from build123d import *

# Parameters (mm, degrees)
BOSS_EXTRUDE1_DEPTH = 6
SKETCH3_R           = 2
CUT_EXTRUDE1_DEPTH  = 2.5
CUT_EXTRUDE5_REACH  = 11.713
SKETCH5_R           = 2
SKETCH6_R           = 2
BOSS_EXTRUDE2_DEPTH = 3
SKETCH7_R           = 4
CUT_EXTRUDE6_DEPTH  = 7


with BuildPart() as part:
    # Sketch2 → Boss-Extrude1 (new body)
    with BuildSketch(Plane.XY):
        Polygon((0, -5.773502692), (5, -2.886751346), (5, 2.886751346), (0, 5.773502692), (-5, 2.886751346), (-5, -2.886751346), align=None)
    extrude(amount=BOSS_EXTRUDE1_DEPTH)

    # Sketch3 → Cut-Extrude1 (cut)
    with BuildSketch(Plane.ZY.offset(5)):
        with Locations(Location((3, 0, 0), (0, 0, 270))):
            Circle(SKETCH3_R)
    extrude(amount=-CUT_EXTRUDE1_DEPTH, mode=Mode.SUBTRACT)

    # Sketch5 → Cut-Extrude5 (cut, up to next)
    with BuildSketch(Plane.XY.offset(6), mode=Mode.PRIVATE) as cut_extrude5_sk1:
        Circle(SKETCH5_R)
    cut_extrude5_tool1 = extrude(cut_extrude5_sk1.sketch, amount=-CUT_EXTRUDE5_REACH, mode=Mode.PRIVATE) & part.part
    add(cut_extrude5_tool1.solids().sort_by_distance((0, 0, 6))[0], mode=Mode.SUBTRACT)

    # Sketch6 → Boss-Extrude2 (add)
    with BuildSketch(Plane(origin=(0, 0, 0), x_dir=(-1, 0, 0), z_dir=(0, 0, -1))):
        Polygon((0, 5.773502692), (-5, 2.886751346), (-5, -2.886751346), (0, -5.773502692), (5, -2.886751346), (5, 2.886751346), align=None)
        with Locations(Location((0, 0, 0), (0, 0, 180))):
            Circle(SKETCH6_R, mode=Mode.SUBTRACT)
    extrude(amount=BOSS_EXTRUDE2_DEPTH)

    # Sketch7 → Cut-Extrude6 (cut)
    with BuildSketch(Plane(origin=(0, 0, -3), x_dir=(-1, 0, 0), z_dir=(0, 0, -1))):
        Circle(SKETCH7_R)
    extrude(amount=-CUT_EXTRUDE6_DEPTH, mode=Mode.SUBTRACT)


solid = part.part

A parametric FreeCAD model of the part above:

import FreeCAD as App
import Part
import Sketcher

V = App.Vector
Q = App.Units.Quantity


def add_polygon(sketch, points):
    """Adds a closed chain of lines whose ends are joined by coincident constraints."""
    first, n = sketch.GeometryCount, len(points)
    for a, b in zip(points, points[1:] + points[:1]):
        sketch.addGeometry(Part.LineSegment(App.Vector(*a, 0), App.Vector(*b, 0)), False)
    for i in range(n):
        sketch.addConstraint(Sketcher.Constraint("Coincident", first + i, 2, first + (i + 1) % n, 1))

doc = App.newDocument("Part")
params = doc.addObject("Spreadsheet::Sheet", "Params")
for row, (alias, value) in enumerate([
    ("pad1_length", "6 mm"),
    ("sketch2_diameter", "4 mm"),
    ("pocket1_length", "2.5 mm"),
    ("sketch3_diameter", "4 mm"),
    ("sketch4_diameter", "4 mm"),
    ("pad2_length", "3 mm"),
    ("sketch5_diameter", "8 mm"),
    ("pocket3_length", "7 mm"),
], start=1):
    params.set(f"A{row}", alias)
    params.set(f"B{row}", "=" + value)
    params.setAlias(f"B{row}", alias)

body = doc.addObject("PartDesign::Body", "Body")

sketch1 = doc.addObject("Sketcher::SketchObject", "Sketch")
body.addObject(sketch1)
sketch1.AttachmentSupport = (doc.XY_Plane, [""])
sketch1.MapMode = "FlatFace"
add_polygon(sketch1, [(0, -6), (5, -3), (5, 3), (0, 6), (-5, 3), (-5, -3)])
sketch1.addConstraint([
    Sketcher.Constraint("Vertical", 1),
    Sketcher.Constraint("Vertical", 4),
    Sketcher.Constraint("Symmetric", 0, 2, 3, 2, -1, 1),
    Sketcher.Constraint("Symmetric", 2, 2, 5, 2, -1, 1),
    Sketcher.Constraint("PointOnObject", 2, 2, -2),
    Sketcher.Constraint("Parallel", 2, 5),
    Sketcher.Constraint("Horizontal", 1, 2, 3, 2),
    Sketcher.Constraint("Angle", 0, Q("30 deg")),
    Sketcher.Constraint("DistanceX", -1, 1, 0, 2, 5.0),
    Sketcher.Constraint("DistanceY", 1, 1, 1, 2, 5.773503),
])
pad1 = doc.addObject("PartDesign::Pad", "Pad")
body.addObject(pad1)
pad1.Profile = sketch1
pad1.setExpression("Length", "Params.pad1_length")

sketch2 = doc.addObject("Sketcher::SketchObject", "Sketch001")
body.addObject(sketch2)
sketch2.AttachmentSupport = (doc.YZ_Plane, [""])
sketch2.MapMode = "FlatFace"
sketch2.AttachmentOffset = App.Placement(V(0, 0, -5), App.Rotation())
sketch2.addGeometry(Part.Circle(V(0, 3, 0), V(0, 0, 1), 2), False)
sketch2.addConstraint([
    Sketcher.Constraint("PointOnObject", 0, 3, -2),
    Sketcher.Constraint("Diameter", 0, 4.0),
    Sketcher.Constraint("DistanceY", -1, 1, 0, 3, 3.0),
])
sketch2.setExpression("Constraints[1]", "Params.sketch2_diameter")
pocket1 = doc.addObject("PartDesign::Pocket", "Pocket")
body.addObject(pocket1)
pocket1.Profile = sketch2
pocket1.setExpression("Length", "Params.pocket1_length")
pocket1.Reversed = True

sketch3 = doc.addObject("Sketcher::SketchObject", "Sketch002")
body.addObject(sketch3)
sketch3.AttachmentSupport = (doc.XY_Plane, [""])
sketch3.MapMode = "FlatFace"
sketch3.AttachmentOffset = App.Placement(V(0, 0, 6), App.Rotation())
sketch3.addGeometry(Part.Circle(V(0, 0, 0), V(0, 0, 1), 2), False)
sketch3.addConstraint([
    Sketcher.Constraint("Coincident", 0, 3, -1, 1),
    Sketcher.Constraint("Diameter", 0, 4.0),
])
sketch3.setExpression("Constraints[1]", "Params.sketch3_diameter")
pocket2 = doc.addObject("PartDesign::Pocket", "Pocket001")
body.addObject(pocket2)
pocket2.Profile = sketch3
pocket2.Type = "UpToFirst"

sketch4 = doc.addObject("Sketcher::SketchObject", "Sketch003")
body.addObject(sketch4)
sketch4.AttachmentSupport = (doc.XY_Plane, [""])
sketch4.MapMode = "FlatFace"
add_polygon(sketch4, [(0, 5.8), (5, 2.9), (5, -2.9), (0, -5.8), (-5, -2.9), (-5, 2.9)])
sketch4.addGeometry(Part.Circle(V(0, 0, 0), V(0, 0, 1), 2), False)
sketch4.addConstraint([
    Sketcher.Constraint("Vertical", 1),
    Sketcher.Constraint("Vertical", 4),
    Sketcher.Constraint("Coincident", 6, 3, -1, 1),
    Sketcher.Constraint("Symmetric", 0, 2, 3, 2, -1, 1),
    Sketcher.Constraint("Symmetric", 2, 2, 5, 2, -1, 1),
    Sketcher.Constraint("PointOnObject", 2, 2, -2),
    Sketcher.Constraint("Parallel", 2, 5),
    Sketcher.Constraint("Horizontal", 1, 2, 3, 2),
    Sketcher.Constraint("Diameter", 6, 4.0),
    Sketcher.Constraint("Angle", 0, Q("-30 deg")),
    Sketcher.Constraint("DistanceX", -1, 1, 0, 2, 5.0),
    Sketcher.Constraint("DistanceY", 1, 2, 1, 1, 5.773503),
])
sketch4.setExpression("Constraints[14]", "Params.sketch4_diameter")
pad2 = doc.addObject("PartDesign::Pad", "Pad001")
body.addObject(pad2)
pad2.Profile = sketch4
pad2.setExpression("Length", "Params.pad2_length")
pad2.Reversed = True

sketch5 = doc.addObject("Sketcher::SketchObject", "Sketch004")
body.addObject(sketch5)
sketch5.AttachmentSupport = (doc.XY_Plane, [""])
sketch5.MapMode = "FlatFace"
sketch5.AttachmentOffset = App.Placement(V(0, 0, -3), App.Rotation())
sketch5.addGeometry(Part.Circle(V(0, 0, 0), V(0, 0, 1), 4), False)
sketch5.addConstraint([
    Sketcher.Constraint("Coincident", 0, 3, -1, 1),
    Sketcher.Constraint("Diameter", 0, 8.0),
])
sketch5.setExpression("Constraints[1]", "Params.sketch5_diameter")
pocket3 = doc.addObject("PartDesign::Pocket", "Pocket002")
body.addObject(pocket3)
pocket3.Profile = sketch5
pocket3.setExpression("Length", "Params.pocket3_length")
pocket3.Reversed = True

doc.recompute()
